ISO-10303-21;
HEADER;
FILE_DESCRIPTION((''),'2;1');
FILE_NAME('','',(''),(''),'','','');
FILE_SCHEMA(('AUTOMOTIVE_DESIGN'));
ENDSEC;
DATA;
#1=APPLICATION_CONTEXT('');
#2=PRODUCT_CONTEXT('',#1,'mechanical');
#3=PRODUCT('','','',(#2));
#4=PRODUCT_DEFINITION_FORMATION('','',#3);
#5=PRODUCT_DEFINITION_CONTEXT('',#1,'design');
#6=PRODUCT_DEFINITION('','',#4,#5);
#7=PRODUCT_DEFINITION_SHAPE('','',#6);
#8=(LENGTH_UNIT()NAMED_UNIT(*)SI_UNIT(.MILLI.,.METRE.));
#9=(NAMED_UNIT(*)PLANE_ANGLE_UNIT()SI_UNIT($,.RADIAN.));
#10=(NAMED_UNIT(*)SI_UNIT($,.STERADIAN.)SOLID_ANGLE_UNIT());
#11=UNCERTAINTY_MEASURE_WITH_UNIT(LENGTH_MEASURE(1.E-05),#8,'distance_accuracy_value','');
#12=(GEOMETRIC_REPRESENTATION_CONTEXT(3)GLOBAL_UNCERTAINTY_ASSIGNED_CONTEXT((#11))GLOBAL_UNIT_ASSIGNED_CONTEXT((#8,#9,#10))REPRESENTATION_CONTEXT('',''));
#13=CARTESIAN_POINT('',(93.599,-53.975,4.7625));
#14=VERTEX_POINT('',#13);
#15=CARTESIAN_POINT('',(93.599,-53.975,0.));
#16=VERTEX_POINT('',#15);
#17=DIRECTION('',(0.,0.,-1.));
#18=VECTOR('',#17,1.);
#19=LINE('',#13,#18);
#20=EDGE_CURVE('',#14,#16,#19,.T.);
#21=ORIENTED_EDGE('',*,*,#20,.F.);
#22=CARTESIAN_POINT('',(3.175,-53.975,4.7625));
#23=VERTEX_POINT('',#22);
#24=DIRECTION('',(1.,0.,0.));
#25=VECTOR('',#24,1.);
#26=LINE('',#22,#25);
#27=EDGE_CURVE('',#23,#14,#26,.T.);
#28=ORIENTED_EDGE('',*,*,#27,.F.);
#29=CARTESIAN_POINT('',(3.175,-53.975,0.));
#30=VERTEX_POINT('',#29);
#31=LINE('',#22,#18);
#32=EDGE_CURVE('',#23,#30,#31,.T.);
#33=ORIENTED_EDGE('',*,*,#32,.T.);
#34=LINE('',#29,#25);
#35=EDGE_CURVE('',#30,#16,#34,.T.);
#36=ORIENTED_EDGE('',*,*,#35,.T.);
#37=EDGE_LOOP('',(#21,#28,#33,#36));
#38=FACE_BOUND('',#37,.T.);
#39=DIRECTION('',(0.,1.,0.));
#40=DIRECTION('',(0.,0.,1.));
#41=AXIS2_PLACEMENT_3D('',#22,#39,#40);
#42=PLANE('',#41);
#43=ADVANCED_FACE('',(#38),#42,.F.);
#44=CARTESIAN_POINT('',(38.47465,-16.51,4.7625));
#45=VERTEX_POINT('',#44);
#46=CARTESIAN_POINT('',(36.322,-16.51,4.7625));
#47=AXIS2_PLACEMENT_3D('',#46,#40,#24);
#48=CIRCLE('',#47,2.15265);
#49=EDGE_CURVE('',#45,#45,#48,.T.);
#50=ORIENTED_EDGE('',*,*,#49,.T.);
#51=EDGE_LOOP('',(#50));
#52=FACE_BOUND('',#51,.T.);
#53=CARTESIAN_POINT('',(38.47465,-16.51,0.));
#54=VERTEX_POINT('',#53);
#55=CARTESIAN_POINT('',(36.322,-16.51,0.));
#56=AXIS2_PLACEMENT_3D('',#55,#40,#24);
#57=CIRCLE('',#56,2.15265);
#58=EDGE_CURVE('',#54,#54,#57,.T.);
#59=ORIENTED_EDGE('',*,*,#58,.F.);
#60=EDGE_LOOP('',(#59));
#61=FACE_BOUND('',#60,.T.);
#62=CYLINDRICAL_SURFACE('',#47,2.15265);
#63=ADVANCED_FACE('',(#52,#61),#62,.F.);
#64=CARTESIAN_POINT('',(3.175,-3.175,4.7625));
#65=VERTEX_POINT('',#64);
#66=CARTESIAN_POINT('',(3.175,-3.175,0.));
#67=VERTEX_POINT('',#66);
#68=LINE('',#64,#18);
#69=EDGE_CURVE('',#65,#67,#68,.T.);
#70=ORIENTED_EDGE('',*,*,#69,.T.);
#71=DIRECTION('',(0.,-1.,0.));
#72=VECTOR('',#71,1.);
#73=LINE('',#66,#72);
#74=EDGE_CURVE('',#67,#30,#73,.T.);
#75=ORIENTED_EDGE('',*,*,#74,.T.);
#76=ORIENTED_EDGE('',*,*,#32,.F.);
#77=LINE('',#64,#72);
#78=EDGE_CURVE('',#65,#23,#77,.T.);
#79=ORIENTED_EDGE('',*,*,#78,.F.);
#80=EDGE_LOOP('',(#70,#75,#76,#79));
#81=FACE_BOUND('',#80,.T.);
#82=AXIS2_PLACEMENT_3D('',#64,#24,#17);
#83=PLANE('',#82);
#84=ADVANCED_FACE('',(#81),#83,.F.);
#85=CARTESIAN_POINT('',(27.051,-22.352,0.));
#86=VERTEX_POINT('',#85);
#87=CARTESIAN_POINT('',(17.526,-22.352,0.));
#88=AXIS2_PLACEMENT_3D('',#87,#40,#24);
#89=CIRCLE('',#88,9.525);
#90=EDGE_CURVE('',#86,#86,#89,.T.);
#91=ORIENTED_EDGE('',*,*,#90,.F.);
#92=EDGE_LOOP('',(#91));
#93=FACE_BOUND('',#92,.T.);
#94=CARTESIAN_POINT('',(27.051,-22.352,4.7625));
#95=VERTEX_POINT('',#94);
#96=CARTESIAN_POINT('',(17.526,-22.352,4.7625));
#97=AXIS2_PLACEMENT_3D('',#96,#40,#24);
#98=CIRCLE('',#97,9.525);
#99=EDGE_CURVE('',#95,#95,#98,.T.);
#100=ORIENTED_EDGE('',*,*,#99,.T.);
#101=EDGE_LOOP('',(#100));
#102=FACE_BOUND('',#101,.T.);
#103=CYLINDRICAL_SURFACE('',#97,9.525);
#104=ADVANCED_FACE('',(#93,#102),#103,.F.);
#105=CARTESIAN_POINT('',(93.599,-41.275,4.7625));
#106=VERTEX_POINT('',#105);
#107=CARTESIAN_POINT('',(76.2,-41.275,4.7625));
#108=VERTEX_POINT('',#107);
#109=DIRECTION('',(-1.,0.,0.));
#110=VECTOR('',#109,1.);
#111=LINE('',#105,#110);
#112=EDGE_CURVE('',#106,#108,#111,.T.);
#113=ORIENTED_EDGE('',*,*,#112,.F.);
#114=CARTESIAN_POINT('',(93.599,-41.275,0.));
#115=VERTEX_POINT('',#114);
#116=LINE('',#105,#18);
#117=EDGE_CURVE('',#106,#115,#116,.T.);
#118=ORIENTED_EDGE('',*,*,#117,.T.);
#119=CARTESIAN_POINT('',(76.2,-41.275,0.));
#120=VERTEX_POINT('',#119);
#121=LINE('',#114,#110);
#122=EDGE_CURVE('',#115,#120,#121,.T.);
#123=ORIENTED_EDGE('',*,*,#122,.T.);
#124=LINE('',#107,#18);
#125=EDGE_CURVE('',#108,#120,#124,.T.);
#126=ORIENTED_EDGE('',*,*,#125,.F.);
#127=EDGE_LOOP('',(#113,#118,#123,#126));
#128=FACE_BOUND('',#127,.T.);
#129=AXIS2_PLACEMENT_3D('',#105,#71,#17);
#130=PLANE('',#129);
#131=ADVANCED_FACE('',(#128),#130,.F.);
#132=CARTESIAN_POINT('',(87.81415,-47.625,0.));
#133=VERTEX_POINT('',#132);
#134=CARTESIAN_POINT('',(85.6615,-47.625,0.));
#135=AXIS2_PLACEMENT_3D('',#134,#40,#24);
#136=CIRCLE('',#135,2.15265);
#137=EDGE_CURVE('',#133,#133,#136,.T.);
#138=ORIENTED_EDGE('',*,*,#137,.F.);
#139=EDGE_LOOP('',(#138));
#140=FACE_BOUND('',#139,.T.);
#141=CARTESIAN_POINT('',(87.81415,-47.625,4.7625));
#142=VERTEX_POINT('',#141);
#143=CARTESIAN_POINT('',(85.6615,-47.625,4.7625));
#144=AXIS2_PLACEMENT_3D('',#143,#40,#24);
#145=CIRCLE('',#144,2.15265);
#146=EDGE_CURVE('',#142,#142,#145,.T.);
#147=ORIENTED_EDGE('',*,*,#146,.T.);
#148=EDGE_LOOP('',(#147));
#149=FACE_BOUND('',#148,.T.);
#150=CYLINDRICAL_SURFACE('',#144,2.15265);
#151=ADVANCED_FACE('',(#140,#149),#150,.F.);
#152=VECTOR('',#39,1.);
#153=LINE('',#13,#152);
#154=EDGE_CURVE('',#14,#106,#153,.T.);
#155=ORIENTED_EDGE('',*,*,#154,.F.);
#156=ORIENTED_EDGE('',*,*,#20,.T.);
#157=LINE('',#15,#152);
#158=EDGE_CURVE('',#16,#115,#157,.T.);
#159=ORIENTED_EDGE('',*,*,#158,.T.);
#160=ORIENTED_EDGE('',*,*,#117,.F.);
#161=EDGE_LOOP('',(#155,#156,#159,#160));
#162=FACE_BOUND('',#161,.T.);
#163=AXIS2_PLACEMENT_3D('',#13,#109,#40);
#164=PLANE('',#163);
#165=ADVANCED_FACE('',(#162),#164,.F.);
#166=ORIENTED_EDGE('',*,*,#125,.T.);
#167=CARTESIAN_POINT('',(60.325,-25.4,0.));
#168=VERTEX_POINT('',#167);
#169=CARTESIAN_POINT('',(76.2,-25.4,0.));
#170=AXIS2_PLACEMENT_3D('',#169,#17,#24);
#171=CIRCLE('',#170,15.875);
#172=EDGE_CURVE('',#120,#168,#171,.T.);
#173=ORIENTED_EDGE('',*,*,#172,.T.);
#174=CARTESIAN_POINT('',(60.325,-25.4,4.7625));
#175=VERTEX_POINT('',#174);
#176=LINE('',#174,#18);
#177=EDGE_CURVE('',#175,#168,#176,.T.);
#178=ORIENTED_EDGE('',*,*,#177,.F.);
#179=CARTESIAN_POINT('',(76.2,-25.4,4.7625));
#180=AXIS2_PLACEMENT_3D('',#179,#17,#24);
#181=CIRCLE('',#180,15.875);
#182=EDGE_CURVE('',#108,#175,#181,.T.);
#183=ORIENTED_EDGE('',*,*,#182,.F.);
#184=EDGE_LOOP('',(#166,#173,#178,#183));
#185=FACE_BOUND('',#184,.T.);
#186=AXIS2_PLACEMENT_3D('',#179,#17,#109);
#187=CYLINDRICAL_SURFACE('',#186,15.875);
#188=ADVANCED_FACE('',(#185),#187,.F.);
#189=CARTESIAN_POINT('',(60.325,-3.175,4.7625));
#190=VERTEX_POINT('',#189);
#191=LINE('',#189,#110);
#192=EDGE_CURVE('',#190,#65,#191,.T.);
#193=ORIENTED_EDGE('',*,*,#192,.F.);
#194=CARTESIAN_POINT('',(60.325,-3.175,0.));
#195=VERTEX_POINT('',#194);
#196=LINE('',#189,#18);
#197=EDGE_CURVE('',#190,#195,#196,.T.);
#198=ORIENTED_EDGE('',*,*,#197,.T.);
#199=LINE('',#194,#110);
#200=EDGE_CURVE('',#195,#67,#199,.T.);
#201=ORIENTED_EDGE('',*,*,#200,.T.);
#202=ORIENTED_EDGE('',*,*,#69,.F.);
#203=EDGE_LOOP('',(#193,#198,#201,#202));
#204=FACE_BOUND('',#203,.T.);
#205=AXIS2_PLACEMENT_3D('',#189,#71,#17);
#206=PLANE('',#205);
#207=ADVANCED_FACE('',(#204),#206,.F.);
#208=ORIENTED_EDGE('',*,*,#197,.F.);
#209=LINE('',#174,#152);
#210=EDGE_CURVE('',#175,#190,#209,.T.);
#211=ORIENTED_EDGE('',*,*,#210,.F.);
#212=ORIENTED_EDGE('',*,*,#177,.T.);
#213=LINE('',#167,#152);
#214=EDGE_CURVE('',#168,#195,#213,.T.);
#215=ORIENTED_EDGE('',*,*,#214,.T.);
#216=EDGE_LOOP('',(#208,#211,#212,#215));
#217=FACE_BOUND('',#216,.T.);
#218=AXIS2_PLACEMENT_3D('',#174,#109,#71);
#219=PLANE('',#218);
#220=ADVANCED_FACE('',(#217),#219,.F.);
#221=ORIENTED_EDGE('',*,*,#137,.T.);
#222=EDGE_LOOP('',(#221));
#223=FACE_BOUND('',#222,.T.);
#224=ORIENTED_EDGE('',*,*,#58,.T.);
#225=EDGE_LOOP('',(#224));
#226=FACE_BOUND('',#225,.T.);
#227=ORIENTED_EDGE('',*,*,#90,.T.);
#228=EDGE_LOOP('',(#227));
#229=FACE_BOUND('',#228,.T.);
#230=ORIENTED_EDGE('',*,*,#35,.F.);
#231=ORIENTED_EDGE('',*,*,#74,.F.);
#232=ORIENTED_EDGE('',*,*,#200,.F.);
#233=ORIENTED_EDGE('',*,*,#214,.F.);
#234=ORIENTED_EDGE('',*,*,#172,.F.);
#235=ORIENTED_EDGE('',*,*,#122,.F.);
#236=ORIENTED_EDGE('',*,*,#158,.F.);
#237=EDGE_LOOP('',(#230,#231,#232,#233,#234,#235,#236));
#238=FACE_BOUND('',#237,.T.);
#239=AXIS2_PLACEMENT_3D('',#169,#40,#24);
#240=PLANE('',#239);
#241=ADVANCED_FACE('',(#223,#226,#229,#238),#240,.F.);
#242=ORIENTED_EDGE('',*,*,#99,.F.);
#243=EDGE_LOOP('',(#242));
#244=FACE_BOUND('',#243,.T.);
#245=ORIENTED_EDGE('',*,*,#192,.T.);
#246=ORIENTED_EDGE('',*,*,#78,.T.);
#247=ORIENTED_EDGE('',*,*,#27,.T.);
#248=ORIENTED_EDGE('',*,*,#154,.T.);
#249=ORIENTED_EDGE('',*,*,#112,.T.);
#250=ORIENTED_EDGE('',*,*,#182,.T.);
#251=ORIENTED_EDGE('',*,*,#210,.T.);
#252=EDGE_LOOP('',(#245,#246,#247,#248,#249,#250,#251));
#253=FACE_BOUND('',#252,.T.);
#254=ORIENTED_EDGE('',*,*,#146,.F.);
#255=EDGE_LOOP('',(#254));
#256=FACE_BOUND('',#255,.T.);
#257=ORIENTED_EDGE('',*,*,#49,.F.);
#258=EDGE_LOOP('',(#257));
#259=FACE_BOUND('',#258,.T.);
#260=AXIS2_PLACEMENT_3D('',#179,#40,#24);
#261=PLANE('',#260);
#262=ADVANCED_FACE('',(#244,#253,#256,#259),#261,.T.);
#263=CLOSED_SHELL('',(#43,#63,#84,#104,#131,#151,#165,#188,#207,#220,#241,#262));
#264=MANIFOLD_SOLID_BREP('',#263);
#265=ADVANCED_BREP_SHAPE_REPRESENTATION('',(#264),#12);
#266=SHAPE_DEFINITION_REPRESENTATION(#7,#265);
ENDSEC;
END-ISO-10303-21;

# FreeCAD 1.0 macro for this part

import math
import FreeCAD as App
import Part
import Sketcher
from FreeCAD import Vector
Q = App.Units.Quantity

doc = App.newDocument("Part")
body = doc.addObject("PartDesign::Body", "Body")

sketch1 = doc.addObject("Sketcher::SketchObject", "Sketch")
body.addObject(sketch1)
sketch1.AttachmentSupport = (doc.XY_Plane, [""])
sketch1.MapMode = "FlatFace"
sketch1.addGeometry(Part.LineSegment(Vector(94, -41, 0), Vector(76, -41, 0)), False)
sketch1.addGeometry(Part.ArcOfCircle(Part.Circle(Vector(76, -25, 0), Vector(0, 0, 1), 16), math.radians(-180), math.radians(-90)), False)
sketch1.addGeometry(Part.LineSegment(Vector(60, -25, 0), Vector(60, -3, 0)), False)
sketch1.addGeometry(Part.LineSegment(Vector(60, -3, 0), Vector(3, -3, 0)), False)
sketch1.addGeometry(Part.LineSegment(Vector(3, -3, 0), Vector(3, -54, 0)), False)
sketch1.addGeometry(Part.LineSegment(Vector(3, -54, 0), Vector(94, -54, 0)), False)
sketch1.addGeometry(Part.LineSegment(Vector(94, -54, 0), Vector(94, -41, 0)), False)
sketch1.addConstraint(Sketcher.Constraint("Tangent", 0, 2, 1, 2))
sketch1.addConstraint(Sketcher.Constraint("Tangent", 1, 1, 2, 1))
sketch1.addConstraint(Sketcher.Constraint("Coincident", 2, 2, 3, 1))
sketch1.addConstraint(Sketcher.Constraint("Coincident", 3, 2, 4, 1))
sketch1.addConstraint(Sketcher.Constraint("Coincident", 4, 2, 5, 1))
sketch1.addConstraint(Sketcher.Constraint("Coincident", 5, 2, 6, 1))
sketch1.addConstraint(Sketcher.Constraint("Coincident", 6, 2, 0, 1))
sketch1.addConstraint(Sketcher.Constraint("Horizontal", 0))
sketch1.addConstraint(Sketcher.Constraint("Vertical", 2))
sketch1.addConstraint(Sketcher.Constraint("Horizontal", 3))
sketch1.addConstraint(Sketcher.Constraint("Vertical", 4))
sketch1.addConstraint(Sketcher.Constraint("Horizontal", 5))
sketch1.addConstraint(Sketcher.Constraint("Vertical", 6))
sketch1.addConstraint(Sketcher.Constraint("DistanceY", 4, 2, 4, 1, Q("2 in")))
sketch1.addConstraint(Sketcher.Constraint("DistanceY", 6, 1, 6, 2, Q("0.5 in")))
sketch1.addConstraint(Sketcher.Constraint("DistanceX", -1, 1, 1, 3, Q("3 in")))
sketch1.addConstraint(Sketcher.Constraint("DistanceY", 1, 3, -1, 1, Q("1 in")))
sketch1.addConstraint(Sketcher.Constraint("Radius", 1, Q("0.625 in")))
sketch1.addConstraint(Sketcher.Constraint("DistanceX", 3, 2, 3, 1, Q("2.25 in")))
sketch1.addConstraint(Sketcher.Constraint("DistanceX", 5, 1, 5, 2, Q("3.56 in")))
pad1 = doc.addObject("PartDesign::Pad", "Pad")
body.addObject(pad1)
pad1.Profile = sketch1
pad1.Length = Q("0.1875 in")

sketch2 = doc.addObject("Sketcher::SketchObject", "Sketch001")
body.addObject(sketch2)
sketch2.AttachmentSupport = (doc.XY_Plane, [""])
sketch2.MapMode = "FlatFace"
sketch2.AttachmentOffset = App.Placement(Vector(0, 0, 0.1875 * 25.4), App.Rotation())
sketch2.addGeometry(Part.Circle(Vector(18, -22, 0), Vector(0, 0, 1), 10), False)
sketch2.addConstraint(Sketcher.Constraint("Diameter", 0, Q("0.75 in")))
sketch2.addConstraint(Sketcher.Constraint("DistanceX", -1, 1, 0, 3, Q("0.69 in")))
sketch2.addConstraint(Sketcher.Constraint("DistanceY", 0, 3, -1, 1, Q("0.88 in")))
doc.recompute()
hole = doc.addObject("PartDesign::Hole", "Hole")
body.addObject(hole)
hole.Profile = sketch2
hole.ThreadType = "None"
hole.Diameter = Q("0.75 in")
hole.DepthType = "ThroughAll"

sketch3 = doc.addObject("Sketcher::SketchObject", "Sketch002")
body.addObject(sketch3)
sketch3.AttachmentSupport = (doc.XY_Plane, [""])
sketch3.MapMode = "FlatFace"
sketch3.AttachmentOffset = App.Placement(Vector(0, 0, 0.1875 * 25.4), App.Rotation())
sketch3.addGeometry(Part.Circle(Vector(36.3, -16.5, 0), Vector(0, 0, 1), 2.2), False)
sketch3.addGeometry(Part.Circle(Vector(85.7, -47.6, 0), Vector(0, 0, 1), 2.2), False)
sketch3.addConstraint(Sketcher.Constraint("Equal", 0, 1))
sketch3.addConstraint(Sketcher.Constraint("Diameter", 0, Q("0.1695 in")))
sketch3.addConstraint(Sketcher.Constraint("DistanceX", -1, 1, 0, 3, Q("1.43 in")))
sketch3.addConstraint(Sketcher.Constraint("DistanceY", 0, 3, -1, 1, Q("0.65 in")))
sketch3.addConstraint(Sketcher.Constraint("DistanceY", 1, 3, -1, 1, Q("1.875 in")))
sketch3.addConstraint(Sketcher.Constraint("DistanceX", -1, 1, 1, 3, Q("3.3725 in")))
doc.recompute()
hole2 = doc.addObject("PartDesign::Hole", "Hole001")
body.addObject(hole2)
hole2.Profile = sketch3
hole2.ThreadType = "None"
hole2.Diameter = Q("0.1695 in")
hole2.DepthType = "ThroughAll"

doc.recompute()
